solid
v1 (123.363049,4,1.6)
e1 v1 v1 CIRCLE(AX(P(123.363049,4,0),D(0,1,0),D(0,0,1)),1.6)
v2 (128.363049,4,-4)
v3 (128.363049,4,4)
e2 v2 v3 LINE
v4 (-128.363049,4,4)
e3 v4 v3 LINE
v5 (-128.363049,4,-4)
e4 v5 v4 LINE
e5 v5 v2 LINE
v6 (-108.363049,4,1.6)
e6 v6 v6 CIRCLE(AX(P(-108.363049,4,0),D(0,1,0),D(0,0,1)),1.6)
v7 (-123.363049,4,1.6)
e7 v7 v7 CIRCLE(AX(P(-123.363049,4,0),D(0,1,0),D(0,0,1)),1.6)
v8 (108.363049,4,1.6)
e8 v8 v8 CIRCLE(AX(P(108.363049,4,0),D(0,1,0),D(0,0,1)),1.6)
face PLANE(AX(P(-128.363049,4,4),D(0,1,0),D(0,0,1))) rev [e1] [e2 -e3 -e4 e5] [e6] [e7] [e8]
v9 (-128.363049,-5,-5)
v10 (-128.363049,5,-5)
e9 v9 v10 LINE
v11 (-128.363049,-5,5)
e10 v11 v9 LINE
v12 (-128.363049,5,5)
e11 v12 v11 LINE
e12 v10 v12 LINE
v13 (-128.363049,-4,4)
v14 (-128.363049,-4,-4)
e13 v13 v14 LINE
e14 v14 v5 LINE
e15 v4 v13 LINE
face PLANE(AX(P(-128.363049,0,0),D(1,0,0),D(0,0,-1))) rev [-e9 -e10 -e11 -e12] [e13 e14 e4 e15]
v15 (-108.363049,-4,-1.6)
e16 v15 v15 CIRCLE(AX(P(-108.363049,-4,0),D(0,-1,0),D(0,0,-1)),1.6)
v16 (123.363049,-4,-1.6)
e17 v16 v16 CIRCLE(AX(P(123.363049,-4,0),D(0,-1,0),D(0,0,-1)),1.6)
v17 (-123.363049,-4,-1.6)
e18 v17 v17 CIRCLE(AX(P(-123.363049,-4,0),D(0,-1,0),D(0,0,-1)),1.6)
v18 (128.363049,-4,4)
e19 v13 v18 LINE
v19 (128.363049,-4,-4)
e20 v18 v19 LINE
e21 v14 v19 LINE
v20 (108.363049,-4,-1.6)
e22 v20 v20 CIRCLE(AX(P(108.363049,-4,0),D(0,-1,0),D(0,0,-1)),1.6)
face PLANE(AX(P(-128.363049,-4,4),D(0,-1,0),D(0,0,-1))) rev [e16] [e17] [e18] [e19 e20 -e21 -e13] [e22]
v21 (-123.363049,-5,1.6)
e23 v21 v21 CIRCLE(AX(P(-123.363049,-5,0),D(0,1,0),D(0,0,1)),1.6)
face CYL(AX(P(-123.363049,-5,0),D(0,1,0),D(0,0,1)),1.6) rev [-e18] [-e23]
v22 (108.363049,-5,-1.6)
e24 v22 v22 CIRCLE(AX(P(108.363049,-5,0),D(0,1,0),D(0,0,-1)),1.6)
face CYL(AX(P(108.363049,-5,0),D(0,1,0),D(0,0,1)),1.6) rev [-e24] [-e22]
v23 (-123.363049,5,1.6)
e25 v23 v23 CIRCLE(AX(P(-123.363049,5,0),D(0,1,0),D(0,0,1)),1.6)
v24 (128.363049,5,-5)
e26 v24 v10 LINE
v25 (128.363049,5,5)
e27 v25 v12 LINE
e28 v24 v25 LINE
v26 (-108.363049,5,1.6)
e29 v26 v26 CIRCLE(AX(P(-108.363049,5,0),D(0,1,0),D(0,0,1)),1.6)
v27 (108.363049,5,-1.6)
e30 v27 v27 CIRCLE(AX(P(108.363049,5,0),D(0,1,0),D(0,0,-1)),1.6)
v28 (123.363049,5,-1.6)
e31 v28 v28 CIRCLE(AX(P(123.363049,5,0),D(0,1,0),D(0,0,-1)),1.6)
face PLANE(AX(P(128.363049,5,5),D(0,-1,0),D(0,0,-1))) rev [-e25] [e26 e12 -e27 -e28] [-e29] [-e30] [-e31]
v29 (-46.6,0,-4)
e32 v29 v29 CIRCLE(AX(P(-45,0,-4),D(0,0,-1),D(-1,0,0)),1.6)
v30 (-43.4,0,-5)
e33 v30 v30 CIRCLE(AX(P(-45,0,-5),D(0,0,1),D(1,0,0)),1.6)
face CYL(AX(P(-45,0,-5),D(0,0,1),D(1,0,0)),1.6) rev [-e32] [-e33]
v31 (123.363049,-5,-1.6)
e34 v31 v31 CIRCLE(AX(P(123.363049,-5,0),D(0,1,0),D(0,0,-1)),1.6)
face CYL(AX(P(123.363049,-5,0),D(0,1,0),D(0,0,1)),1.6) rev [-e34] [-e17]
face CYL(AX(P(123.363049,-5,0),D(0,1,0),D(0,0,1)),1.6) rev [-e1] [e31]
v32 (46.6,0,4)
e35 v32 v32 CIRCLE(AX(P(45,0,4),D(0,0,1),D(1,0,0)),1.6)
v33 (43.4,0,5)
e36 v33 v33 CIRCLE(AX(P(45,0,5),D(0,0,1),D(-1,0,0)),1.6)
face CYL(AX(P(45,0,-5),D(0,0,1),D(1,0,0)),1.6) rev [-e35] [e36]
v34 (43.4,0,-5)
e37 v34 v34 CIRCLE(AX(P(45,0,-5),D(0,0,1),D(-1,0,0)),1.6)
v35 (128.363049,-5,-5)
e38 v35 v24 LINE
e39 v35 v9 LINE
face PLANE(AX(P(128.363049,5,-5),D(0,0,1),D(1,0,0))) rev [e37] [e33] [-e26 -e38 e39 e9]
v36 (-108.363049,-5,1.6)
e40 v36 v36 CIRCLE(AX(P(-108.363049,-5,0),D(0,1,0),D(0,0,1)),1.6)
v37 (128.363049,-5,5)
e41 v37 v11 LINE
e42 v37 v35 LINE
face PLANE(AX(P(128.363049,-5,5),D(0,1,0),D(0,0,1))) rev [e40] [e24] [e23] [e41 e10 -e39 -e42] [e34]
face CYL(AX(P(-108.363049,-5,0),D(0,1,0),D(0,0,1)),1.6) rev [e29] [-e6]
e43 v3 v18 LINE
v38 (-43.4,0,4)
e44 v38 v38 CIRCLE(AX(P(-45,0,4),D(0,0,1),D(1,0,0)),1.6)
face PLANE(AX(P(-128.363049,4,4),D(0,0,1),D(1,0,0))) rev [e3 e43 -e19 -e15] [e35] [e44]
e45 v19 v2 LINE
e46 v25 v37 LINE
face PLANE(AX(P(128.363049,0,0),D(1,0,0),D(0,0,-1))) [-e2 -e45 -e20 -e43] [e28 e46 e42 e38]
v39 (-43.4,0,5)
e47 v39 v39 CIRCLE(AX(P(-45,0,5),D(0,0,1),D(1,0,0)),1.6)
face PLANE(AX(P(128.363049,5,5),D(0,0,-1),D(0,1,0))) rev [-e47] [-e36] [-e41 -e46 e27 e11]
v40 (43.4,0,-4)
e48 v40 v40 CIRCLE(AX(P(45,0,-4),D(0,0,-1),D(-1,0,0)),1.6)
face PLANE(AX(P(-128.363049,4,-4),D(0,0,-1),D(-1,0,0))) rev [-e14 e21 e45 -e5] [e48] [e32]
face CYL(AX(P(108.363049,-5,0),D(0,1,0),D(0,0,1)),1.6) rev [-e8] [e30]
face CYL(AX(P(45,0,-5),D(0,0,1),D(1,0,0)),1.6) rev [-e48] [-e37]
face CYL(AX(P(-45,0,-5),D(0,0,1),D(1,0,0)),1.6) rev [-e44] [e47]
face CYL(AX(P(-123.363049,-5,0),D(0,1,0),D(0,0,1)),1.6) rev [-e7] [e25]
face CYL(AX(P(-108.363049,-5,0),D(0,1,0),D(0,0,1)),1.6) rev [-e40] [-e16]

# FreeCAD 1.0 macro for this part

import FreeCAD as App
import Part
import Sketcher


def add_polygon(sketch, points):
    """Adds a closed chain of lines whose ends are joined by coincident constraints."""
    first, n = sketch.GeometryCount, len(points)
    for a, b in zip(points, points[1:] + points[:1]):
        sketch.addGeometry(Part.LineSegment(App.Vector(*a, 0), App.Vector(*b, 0)), False)
    for i in range(n):
        sketch.addConstraint(Sketcher.Constraint("Coincident", first + i, 2, first + (i + 1) % n, 1))

doc = App.newDocument("Part")
body = doc.addObject("PartDesign::Body", "Body")

# Sketch on YZ plane
sketch1 = body.newObject("Sketcher::SketchObject", "Sketch")
sketch1.AttachmentSupport = (doc.getObject("YZ_Plane"), [""])
sketch1.MapMode = "FlatFace"
add_polygon(sketch1, [(5, 5), (-5, 5), (-5, -5), (5, -5)])  # lines 0-3
sketch1.addConstraint([
    Sketcher.Constraint("Horizontal", 0),
    Sketcher.Constraint("Vertical", 1),
    Sketcher.Constraint("Horizontal", 2),
    Sketcher.Constraint("Vertical", 3),
    Sketcher.Constraint("Symmetric", 0, 2, 2, 2, -1, 1),
    Sketcher.Constraint("Equal", 2, 1),
    Sketcher.Constraint("DistanceX", 0, 2, 0, 1, 10.0),
])
pad1 = body.newObject("PartDesign::Pad", "Pad")
pad1.Profile = sketch1
pad1.Length = 256.726099
pad1.Midplane = True

# Sketch on YZ plane
sketch2 = body.newObject("Sketcher::SketchObject", "Sketch001")
sketch2.AttachmentSupport = (doc.getObject("YZ_Plane"), [""])
sketch2.MapMode = "FlatFace"
sketch2.AttachmentOffset = App.Placement(App.Vector(0, 0, 128.363049), App.Rotation())
add_polygon(sketch2, [(4, 4), (-4, 4), (-4, -4), (4, -4)])  # lines 0-3
sketch2.addConstraint([
    Sketcher.Constraint("Horizontal", 0),
    Sketcher.Constraint("Vertical", 1),
    Sketcher.Constraint("Horizontal", 2),
    Sketcher.Constraint("Vertical", 3),
    Sketcher.Constraint("Symmetric", 0, 2, 2, 2, -1, 1),
    Sketcher.Constraint("Equal", 2, 1),
    Sketcher.Constraint("DistanceX", 0, 2, 0, 1, 8.0),
])
pocket1 = body.newObject("PartDesign::Pocket", "Pocket")
pocket1.Profile = sketch2
pocket1.Type = "ThroughAll"

# Sketch on XZ plane
sketch3 = body.newObject("Sketcher::SketchObject", "Sketch002")
sketch3.AttachmentSupport = (doc.getObject("XZ_Plane"), [""])
sketch3.MapMode = "FlatFace"
sketch3.AttachmentOffset = App.Placement(App.Vector(0, 0, -5), App.Rotation())
sketch3.addGeometry([
    Part.Circle(App.Vector(-123.4, 0, 0), App.Vector(0, 0, 1), 1.6),
    Part.Circle(App.Vector(-108.4, 0, 0), App.Vector(0, 0, 1), 1.6),
    Part.Circle(App.Vector(108.4, 0, 0), App.Vector(0, 0, 1), 1.6),
    Part.Circle(App.Vector(123.4, 0, 0), App.Vector(0, 0, 1), 1.6),
], False)
sketch3.addConstraint([
    Sketcher.Constraint("Equal", 0, 1),
    Sketcher.Constraint("Equal", 1, 2),
    Sketcher.Constraint("Equal", 2, 3),
    Sketcher.Constraint("Symmetric", 1, 3, 2, 3, -1, 1),
    Sketcher.Constraint("Symmetric", 0, 3, 3, 3, -1, 1),
    Sketcher.Constraint("PointOnObject", 0, 3, -1),
    Sketcher.Constraint("PointOnObject", 1, 3, -1),
    Sketcher.Constraint("Diameter", 0, 3.2),
    Sketcher.Constraint("DistanceX", 0, 3, 1, 3, 15.0),
    Sketcher.Constraint("DistanceX", 1, 3, 2, 3, 216.726099),
])
pocket2 = body.newObject("PartDesign::Pocket", "Pocket001")
pocket2.Profile = sketch3
pocket2.Type = "ThroughAll"
pocket2.Reversed = True

# Sketch on XY plane
sketch4 = body.newObject("Sketcher::SketchObject", "Sketch003")
sketch4.AttachmentSupport = (doc.getObject("XY_Plane"), [""])
sketch4.MapMode = "FlatFace"
sketch4.AttachmentOffset = App.Placement(App.Vector(0, 0, 5), App.Rotation())
sketch4.addGeometry([
    Part.Circle(App.Vector(-45, 0, 0), App.Vector(0, 0, 1), 1.6),
    Part.Circle(App.Vector(45, 0, 0), App.Vector(0, 0, 1), 1.6),
], False)
sketch4.addConstraint([
    Sketcher.Constraint("Equal", 0, 1),
    Sketcher.Constraint("Symmetric", 0, 3, 1, 3, -1, 1),
    Sketcher.Constraint("PointOnObject", 0, 3, -1),
    Sketcher.Constraint("Diameter", 0, 3.2),
    Sketcher.Constraint("DistanceX", 0, 3, -1, 1, 45.0),
])
pocket3 = body.newObject("PartDesign::Pocket", "Pocket002")
pocket3.Profile = sketch4
pocket3.Type = "ThroughAll"

doc.recompute()
